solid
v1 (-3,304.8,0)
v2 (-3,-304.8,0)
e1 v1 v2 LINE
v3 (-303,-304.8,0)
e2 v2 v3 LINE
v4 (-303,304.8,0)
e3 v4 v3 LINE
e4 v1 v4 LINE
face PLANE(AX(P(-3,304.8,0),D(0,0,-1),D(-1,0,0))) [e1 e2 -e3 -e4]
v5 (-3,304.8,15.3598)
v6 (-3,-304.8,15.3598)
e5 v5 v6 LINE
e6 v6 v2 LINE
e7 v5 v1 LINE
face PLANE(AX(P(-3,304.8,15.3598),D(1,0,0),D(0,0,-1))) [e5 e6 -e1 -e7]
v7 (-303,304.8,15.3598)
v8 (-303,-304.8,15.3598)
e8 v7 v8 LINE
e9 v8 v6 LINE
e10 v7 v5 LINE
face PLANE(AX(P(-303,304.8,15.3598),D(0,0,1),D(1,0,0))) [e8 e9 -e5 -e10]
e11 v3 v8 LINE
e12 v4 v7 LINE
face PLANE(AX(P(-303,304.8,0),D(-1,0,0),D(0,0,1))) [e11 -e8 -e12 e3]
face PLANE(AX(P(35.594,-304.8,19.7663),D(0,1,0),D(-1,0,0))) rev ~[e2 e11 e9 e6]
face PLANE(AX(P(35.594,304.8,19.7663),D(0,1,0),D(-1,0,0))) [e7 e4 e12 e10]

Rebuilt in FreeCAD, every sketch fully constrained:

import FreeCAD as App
import Part
import Sketcher


def add_polygon(sketch, points):
    """Adds a closed chain of lines whose ends are joined by coincident constraints."""
    first, n = sketch.GeometryCount, len(points)
    for a, b in zip(points, points[1:] + points[:1]):
        sketch.addGeometry(Part.LineSegment(App.Vector(*a, 0), App.Vector(*b, 0)), False)
    for i in range(n):
        sketch.addConstraint(Sketcher.Constraint("Coincident", first + i, 2, first + (i + 1) % n, 1))

doc = App.newDocument("Part")
body = doc.addObject("PartDesign::Body", "Body")

sketch1 = body.newObject("Sketcher::SketchObject", "Sketch")
sketch1.AttachmentSupport = (doc.getObject("XZ_Plane"), [""])
sketch1.MapMode = "FlatFace"
sketch1.AttachmentOffset = App.Placement(App.Vector(0, 0, -304.8), App.Rotation())
add_polygon(sketch1, [(-3, 15.3598), (-3, 0), (-303, 0), (-303, 15.3598)])
sketch1.addConstraint([
    Sketcher.Constraint("Vertical", 0),
    Sketcher.Constraint("Horizontal", 1),
    Sketcher.Constraint("Vertical", 2),
    Sketcher.Constraint("Horizontal", 3),
    Sketcher.Constraint("PointOnObject", 0, 2, -1),
    Sketcher.Constraint("DistanceX", 1, 2, 1, 1, 300.0),
    Sketcher.Constraint("DistanceX", 0, 2, -1, 1, 3.0),
    Sketcher.Constraint("DistanceY", 0, 2, 0, 1, 15.3598),
])
pad1 = body.newObject("PartDesign::Pad", "Pad")
pad1.Profile = sketch1
pad1.Length = 609.6

doc.recompute()
